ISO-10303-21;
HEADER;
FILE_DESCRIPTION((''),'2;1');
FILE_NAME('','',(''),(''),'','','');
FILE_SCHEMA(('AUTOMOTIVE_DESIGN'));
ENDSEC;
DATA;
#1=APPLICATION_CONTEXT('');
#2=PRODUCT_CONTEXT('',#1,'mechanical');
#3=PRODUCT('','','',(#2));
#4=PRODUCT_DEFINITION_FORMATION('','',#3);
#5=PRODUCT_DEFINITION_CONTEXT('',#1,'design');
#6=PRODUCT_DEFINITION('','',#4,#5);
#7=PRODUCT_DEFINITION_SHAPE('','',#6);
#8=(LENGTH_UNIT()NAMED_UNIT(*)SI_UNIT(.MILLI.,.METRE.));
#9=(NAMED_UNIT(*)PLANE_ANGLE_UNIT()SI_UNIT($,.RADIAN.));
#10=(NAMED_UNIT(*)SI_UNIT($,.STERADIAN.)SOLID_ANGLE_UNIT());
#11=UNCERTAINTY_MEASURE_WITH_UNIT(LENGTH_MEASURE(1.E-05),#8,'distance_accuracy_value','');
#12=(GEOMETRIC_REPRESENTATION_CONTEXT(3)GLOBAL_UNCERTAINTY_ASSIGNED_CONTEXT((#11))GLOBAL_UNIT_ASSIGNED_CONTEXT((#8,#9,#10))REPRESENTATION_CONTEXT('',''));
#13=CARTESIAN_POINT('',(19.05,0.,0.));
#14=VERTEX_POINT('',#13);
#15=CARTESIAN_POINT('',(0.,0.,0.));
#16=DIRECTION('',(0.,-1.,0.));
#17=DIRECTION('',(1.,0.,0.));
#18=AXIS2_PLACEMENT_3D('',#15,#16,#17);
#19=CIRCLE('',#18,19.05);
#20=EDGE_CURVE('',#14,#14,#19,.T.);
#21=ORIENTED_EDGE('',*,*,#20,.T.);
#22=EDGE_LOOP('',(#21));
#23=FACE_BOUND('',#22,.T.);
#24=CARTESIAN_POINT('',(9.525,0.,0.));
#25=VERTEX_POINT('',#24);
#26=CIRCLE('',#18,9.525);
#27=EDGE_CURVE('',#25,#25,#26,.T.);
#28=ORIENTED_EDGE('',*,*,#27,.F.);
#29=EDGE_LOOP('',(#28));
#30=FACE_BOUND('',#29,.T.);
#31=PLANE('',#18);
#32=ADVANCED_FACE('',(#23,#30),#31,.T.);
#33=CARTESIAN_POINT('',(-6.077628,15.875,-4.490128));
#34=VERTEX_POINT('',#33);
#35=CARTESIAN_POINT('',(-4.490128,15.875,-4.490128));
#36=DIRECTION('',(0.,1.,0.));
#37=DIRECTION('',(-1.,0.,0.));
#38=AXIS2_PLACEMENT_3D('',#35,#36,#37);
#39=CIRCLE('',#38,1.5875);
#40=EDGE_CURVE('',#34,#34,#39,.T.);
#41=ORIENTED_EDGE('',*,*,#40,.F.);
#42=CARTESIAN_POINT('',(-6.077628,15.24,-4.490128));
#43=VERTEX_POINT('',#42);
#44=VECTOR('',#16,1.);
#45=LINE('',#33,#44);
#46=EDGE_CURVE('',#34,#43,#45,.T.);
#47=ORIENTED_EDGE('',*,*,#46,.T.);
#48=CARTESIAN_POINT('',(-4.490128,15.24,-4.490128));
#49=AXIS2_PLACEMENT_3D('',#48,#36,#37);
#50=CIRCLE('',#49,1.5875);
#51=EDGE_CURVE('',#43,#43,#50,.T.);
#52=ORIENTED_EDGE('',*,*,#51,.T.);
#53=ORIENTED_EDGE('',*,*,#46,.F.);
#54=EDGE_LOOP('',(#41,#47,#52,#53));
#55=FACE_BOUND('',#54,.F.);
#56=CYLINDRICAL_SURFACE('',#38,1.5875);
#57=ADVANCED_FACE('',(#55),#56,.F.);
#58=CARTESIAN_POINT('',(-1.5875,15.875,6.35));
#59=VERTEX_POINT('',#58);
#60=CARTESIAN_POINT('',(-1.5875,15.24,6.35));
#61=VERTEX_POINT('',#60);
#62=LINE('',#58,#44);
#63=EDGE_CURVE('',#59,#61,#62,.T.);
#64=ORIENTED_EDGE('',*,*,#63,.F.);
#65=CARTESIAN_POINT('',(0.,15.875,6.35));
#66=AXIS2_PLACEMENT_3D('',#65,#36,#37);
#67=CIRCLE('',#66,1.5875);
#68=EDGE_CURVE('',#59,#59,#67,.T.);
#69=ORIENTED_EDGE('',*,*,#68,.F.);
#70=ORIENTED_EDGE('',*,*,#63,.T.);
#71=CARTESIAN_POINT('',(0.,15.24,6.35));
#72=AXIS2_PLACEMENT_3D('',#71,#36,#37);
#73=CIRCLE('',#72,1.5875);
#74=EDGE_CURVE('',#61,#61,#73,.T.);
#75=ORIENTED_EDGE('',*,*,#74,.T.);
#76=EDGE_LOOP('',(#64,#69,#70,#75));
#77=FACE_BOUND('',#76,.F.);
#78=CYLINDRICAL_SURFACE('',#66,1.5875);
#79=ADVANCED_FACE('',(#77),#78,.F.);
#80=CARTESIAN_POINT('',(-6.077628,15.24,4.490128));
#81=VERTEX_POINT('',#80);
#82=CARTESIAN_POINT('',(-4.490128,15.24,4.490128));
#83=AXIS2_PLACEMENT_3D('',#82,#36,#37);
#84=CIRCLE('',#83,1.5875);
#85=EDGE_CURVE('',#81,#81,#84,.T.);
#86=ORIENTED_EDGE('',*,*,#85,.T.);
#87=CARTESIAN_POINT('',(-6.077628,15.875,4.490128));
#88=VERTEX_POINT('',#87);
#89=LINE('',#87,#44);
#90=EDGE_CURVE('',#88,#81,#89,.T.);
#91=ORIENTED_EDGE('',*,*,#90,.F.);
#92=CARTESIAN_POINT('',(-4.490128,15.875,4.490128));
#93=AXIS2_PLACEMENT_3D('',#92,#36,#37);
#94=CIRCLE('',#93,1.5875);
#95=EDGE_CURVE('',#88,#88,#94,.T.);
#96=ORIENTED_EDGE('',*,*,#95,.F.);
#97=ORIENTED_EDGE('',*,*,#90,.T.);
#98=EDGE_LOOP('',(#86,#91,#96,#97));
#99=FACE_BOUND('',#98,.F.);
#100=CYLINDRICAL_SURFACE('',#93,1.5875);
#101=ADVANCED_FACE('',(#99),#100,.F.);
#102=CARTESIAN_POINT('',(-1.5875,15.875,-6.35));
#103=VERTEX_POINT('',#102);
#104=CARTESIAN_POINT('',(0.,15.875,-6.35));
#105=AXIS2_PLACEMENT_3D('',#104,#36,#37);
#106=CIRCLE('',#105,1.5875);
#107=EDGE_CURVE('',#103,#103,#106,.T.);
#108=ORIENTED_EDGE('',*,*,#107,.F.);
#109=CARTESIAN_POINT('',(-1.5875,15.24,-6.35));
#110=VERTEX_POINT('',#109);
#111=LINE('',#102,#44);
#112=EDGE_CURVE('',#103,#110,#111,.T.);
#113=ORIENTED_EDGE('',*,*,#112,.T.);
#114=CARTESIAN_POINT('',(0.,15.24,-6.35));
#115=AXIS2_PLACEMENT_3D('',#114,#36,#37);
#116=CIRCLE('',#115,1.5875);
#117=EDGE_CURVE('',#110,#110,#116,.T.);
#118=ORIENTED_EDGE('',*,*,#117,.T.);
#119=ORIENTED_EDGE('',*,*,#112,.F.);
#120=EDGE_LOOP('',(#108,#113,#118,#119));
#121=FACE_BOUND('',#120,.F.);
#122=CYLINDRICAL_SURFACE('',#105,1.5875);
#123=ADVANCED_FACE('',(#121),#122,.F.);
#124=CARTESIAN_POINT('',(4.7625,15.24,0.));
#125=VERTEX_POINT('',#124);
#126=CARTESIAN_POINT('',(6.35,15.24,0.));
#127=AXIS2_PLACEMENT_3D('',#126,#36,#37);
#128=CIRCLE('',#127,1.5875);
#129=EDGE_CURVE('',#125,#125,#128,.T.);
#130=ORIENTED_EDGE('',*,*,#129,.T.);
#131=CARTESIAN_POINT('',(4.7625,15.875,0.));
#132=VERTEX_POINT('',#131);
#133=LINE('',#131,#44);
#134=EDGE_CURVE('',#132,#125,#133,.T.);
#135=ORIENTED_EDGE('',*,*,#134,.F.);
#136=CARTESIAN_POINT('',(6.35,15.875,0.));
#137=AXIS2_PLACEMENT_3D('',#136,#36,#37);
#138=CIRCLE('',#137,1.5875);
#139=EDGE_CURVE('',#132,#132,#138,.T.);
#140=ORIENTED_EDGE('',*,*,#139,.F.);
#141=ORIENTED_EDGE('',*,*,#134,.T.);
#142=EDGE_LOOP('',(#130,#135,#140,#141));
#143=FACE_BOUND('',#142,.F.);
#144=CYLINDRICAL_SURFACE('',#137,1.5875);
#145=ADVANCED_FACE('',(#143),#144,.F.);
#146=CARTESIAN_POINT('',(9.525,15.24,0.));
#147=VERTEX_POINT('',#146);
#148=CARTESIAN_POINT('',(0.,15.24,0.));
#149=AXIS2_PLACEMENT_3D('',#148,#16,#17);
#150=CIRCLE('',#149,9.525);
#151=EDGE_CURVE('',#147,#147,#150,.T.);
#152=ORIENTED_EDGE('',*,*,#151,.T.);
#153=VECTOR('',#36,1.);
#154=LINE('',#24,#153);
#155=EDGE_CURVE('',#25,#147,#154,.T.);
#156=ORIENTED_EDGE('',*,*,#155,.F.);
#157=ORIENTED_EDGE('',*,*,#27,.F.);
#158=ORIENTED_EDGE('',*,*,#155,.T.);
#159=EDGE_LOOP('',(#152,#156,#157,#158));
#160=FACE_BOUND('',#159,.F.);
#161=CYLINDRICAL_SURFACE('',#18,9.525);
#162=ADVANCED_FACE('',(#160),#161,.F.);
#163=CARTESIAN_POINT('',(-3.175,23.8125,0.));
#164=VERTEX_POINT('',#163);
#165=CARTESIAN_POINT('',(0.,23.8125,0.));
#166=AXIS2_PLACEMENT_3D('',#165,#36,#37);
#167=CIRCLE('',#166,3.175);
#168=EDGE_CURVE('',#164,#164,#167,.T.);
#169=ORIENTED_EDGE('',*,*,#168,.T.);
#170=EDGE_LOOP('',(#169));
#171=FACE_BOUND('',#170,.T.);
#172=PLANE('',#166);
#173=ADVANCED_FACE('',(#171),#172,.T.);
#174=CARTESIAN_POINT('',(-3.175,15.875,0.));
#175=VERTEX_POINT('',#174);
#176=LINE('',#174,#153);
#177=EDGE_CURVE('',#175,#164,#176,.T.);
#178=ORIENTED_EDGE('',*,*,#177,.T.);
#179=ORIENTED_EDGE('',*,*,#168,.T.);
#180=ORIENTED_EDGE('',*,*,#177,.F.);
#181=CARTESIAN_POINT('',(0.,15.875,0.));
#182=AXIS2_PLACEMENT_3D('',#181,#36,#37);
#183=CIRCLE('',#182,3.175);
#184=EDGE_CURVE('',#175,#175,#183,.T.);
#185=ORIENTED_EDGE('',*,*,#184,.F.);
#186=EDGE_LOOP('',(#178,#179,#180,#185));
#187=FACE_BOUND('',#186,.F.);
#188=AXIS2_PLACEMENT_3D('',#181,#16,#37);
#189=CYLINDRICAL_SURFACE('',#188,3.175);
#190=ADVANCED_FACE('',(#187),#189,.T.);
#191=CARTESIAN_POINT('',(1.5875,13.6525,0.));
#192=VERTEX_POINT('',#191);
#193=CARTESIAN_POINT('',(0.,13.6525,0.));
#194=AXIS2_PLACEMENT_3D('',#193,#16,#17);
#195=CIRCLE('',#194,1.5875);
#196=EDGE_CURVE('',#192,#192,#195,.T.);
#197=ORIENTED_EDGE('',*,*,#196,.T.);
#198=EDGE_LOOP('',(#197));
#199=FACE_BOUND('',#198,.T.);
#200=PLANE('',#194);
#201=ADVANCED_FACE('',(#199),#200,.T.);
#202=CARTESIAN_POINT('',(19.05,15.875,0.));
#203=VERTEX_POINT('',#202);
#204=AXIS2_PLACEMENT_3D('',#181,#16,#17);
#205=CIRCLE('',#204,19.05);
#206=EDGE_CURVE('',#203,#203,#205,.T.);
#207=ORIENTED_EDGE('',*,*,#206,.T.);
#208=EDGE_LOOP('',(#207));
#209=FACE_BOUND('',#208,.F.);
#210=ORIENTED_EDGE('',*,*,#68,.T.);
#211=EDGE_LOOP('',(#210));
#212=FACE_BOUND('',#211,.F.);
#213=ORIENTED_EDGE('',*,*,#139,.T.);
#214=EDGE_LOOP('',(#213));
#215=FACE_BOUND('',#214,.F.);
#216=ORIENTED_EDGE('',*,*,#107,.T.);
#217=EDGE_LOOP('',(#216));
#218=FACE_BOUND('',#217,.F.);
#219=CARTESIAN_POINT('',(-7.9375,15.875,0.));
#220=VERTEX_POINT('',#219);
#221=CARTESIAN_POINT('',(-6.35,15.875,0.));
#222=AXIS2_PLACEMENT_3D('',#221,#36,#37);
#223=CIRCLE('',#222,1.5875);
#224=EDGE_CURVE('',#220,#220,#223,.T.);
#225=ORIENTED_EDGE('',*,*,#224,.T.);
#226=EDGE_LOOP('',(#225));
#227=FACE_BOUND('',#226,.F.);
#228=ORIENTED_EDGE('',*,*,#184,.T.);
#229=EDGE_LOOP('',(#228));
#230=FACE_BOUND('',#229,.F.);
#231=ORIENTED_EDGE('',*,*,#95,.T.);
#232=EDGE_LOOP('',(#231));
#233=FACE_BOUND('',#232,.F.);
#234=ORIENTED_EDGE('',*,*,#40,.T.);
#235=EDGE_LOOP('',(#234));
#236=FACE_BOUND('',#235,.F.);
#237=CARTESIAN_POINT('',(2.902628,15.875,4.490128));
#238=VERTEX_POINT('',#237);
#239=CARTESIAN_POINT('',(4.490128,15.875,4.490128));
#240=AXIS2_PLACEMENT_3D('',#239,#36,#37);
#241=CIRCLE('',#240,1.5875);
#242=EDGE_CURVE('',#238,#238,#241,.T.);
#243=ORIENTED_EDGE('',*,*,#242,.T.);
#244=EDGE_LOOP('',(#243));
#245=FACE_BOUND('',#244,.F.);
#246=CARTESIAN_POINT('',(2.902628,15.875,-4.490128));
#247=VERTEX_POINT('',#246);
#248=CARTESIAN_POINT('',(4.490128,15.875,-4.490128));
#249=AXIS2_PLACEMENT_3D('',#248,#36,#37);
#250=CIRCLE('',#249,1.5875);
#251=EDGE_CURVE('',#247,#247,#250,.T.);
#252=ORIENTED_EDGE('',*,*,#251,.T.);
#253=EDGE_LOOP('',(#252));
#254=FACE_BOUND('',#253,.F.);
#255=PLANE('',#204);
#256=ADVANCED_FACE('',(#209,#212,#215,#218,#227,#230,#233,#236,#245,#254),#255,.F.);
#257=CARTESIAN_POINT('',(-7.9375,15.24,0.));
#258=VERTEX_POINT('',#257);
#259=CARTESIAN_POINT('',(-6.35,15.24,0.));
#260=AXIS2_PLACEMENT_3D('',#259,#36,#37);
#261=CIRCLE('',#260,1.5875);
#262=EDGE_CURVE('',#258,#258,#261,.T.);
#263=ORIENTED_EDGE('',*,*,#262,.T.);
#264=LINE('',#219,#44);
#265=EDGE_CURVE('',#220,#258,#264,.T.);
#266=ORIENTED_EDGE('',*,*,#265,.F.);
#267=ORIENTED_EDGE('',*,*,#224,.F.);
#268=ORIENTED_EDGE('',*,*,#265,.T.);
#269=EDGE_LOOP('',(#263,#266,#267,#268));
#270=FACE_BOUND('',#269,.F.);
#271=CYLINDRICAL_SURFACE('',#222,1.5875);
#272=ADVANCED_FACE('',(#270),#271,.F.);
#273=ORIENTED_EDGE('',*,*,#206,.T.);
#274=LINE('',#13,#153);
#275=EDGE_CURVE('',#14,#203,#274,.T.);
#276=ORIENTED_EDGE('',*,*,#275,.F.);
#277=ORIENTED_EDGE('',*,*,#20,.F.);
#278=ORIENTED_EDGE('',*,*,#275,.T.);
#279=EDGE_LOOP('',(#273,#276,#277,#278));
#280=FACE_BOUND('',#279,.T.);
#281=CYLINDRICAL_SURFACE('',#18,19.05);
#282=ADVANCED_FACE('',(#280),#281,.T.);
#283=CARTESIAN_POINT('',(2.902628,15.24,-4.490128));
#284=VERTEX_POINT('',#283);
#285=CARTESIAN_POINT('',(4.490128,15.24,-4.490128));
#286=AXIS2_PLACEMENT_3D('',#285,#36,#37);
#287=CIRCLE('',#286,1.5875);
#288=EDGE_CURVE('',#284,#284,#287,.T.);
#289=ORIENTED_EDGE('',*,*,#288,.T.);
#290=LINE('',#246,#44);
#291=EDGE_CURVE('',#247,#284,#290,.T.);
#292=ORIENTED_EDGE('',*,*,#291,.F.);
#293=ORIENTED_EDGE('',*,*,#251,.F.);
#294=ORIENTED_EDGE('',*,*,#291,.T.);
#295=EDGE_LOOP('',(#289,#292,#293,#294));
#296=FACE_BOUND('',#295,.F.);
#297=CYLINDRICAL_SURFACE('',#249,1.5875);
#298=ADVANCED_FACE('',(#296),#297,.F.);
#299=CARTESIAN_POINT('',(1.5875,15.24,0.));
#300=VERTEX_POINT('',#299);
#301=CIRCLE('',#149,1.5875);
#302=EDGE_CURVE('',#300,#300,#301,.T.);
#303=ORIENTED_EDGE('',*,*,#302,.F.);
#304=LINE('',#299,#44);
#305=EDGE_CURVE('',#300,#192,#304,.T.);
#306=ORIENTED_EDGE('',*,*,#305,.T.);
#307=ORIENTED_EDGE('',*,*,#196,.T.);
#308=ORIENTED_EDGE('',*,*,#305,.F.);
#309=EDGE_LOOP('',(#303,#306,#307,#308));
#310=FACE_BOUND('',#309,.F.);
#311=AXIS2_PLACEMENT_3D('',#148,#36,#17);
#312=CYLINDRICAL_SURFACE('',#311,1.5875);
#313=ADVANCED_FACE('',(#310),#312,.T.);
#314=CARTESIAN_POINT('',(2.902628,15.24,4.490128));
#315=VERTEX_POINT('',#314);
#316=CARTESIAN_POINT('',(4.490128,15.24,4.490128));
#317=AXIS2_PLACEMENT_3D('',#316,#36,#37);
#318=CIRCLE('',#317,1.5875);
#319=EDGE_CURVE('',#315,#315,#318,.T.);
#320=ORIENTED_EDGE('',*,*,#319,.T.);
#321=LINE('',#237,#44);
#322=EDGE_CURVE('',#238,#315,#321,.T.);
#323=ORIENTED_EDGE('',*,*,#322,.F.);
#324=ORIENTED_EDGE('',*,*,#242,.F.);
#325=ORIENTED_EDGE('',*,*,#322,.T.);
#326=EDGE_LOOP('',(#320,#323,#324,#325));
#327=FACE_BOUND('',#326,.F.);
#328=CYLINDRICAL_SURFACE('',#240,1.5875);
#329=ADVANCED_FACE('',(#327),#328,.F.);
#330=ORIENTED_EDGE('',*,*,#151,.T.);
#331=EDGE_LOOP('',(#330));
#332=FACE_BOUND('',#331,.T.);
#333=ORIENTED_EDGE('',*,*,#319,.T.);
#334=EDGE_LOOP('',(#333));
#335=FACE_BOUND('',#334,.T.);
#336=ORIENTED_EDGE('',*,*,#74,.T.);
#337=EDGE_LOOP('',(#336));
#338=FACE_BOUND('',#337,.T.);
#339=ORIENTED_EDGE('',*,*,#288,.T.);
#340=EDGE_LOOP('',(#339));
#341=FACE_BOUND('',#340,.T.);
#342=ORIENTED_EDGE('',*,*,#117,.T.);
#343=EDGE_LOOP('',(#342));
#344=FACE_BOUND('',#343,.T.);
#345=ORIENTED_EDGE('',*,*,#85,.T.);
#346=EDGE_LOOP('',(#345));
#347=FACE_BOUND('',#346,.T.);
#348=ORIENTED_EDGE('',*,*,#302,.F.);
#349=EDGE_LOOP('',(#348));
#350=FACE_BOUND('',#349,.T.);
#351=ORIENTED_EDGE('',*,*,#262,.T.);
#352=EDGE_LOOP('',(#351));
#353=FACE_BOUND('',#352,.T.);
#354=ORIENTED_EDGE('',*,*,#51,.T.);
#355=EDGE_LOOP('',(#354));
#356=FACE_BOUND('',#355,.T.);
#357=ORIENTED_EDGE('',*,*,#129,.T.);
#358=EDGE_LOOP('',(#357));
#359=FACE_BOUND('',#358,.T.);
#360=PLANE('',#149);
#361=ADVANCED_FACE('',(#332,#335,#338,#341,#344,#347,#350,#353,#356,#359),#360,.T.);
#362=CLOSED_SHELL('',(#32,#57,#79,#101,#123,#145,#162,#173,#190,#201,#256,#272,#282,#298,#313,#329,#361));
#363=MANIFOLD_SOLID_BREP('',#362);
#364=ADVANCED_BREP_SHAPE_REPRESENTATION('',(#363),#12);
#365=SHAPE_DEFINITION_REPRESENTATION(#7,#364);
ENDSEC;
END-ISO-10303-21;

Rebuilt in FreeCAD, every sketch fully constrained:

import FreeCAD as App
import Part
import Sketcher
from FreeCAD import Vector
Q = App.Units.Quantity

doc = App.newDocument("Part")
params = doc.addObject("Spreadsheet::Sheet", "Params")
for row, (alias, value) in enumerate([
    ("sketch1_diameter", "1.5 in"),
    ("pad1_length", "0.625 in"),
    ("sketch2_diameter", "0.75 in"),
    ("pocket1_length", "0.6 in"),
    ("sketch3_diameter", "0.125 in"),
    ("pad2_length", "0.0625 in"),
    ("sketch4_diameter", "0.25 in"),
    ("pad3_length", "0.3125 in"),
    ("sketch5_diameter", "0.125 in"),
    ("pocket2_length", "1 in"),
], start=1):
    params.set(f"A{row}", alias)
    params.set(f"B{row}", "=" + value)
    params.setAlias(f"B{row}", alias)

body = doc.addObject("PartDesign::Body", "Body")

# Sketch on XZ plane
sketch1 = body.newObject("Sketcher::SketchObject", "Sketch")
sketch1.AttachmentSupport = (doc.getObject("XZ_Plane"), [""])
sketch1.MapMode = "FlatFace"
sketch1.addGeometry(Part.Circle(Vector(0, 0, 0), Vector(0, 0, 1), 19.05), False)
sketch1.addConstraint(Sketcher.Constraint("Coincident", 0, 3, -1, 1))
sketch1.addConstraint(Sketcher.Constraint("Diameter", 0, Q("1.5 in")))
sketch1.setExpression("Constraints[1]", "Params.sketch1_diameter")
pad1 = body.newObject("PartDesign::Pad", "Pad")
pad1.Profile = sketch1
pad1.setExpression("Length", "Params.pad1_length")
pad1.Reversed = True

# Sketch on XZ plane
sketch2 = body.newObject("Sketcher::SketchObject", "Sketch001")
sketch2.AttachmentSupport = (doc.getObject("XZ_Plane"), [""])
sketch2.MapMode = "FlatFace"
sketch2.addGeometry(Part.Circle(Vector(0, 0, 0), Vector(0, 0, 1), 9.525), False)
sketch2.addConstraint(Sketcher.Constraint("Coincident", 0, 3, -1, 1))
sketch2.addConstraint(Sketcher.Constraint("Diameter", 0, Q("0.75 in")))
sketch2.setExpression("Constraints[1]", "Params.sketch2_diameter")
pocket1 = body.newObject("PartDesign::Pocket", "Pocket")
pocket1.Profile = sketch2
pocket1.setExpression("Length", "Params.pocket1_length")

# Sketch on XZ plane
sketch3 = body.newObject("Sketcher::SketchObject", "Sketch002")
sketch3.AttachmentSupport = (doc.getObject("XZ_Plane"), [""])
sketch3.MapMode = "FlatFace"
sketch3.AttachmentOffset = App.Placement(Vector(0, 0, -0.6 * 25.4), App.Rotation())
sketch3.addGeometry(Part.Circle(Vector(0, 0, 0), Vector(0, 0, 1), 1.5875), False)
sketch3.addConstraint(Sketcher.Constraint("Coincident", 0, 3, -1, 1))
sketch3.addConstraint(Sketcher.Constraint("Diameter", 0, Q("0.125 in")))
sketch3.setExpression("Constraints[1]", "Params.sketch3_diameter")
pad2 = body.newObject("PartDesign::Pad", "Pad001")
pad2.Profile = sketch3
pad2.setExpression("Length", "Params.pad2_length")

# Sketch on XZ plane
sketch4 = body.newObject("Sketcher::SketchObject", "Sketch003")
sketch4.AttachmentSupport = (doc.getObject("XZ_Plane"), [""])
sketch4.MapMode = "FlatFace"
sketch4.AttachmentOffset = App.Placement(Vector(0, 0, -0.625 * 25.4), App.Rotation())
sketch4.addGeometry(Part.Circle(Vector(0, 0, 0), Vector(0, 0, 1), 3.175), False)
sketch4.addConstraint(Sketcher.Constraint("Coincident", 0, 3, -1, 1))
sketch4.addConstraint(Sketcher.Constraint("Diameter", 0, Q("0.25 in")))
sketch4.setExpression("Constraints[1]", "Params.sketch4_diameter")
pad3 = body.newObject("PartDesign::Pad", "Pad002")
pad3.Profile = sketch4
pad3.setExpression("Length", "Params.pad3_length")
pad3.Reversed = True

# Sketch on XZ plane
sketch5 = body.newObject("Sketcher::SketchObject", "Sketch004")
sketch5.AttachmentSupport = (doc.getObject("XZ_Plane"), [""])
sketch5.MapMode = "FlatFace"
sketch5.AttachmentOffset = App.Placement(Vector(0, 0, -0.625 * 25.4), App.Rotation())
sketch5.addGeometry(Part.Circle(Vector(-6.35, 0, 0), Vector(0, 0, 1), 1.5875), False)
sketch5.addGeometry(Part.Circle(Vector(-4.490128, 4.490128, 0), Vector(0, 0, 1), 1.5875), False)
sketch5.addGeometry(Part.Circle(Vector(0, 6.35, 0), Vector(0, 0, 1), 1.5875), False)
sketch5.addGeometry(Part.Circle(Vector(4.490128, 4.490128, 0), Vector(0, 0, 1), 1.5875), False)
sketch5.addGeometry(Part.Circle(Vector(6.35, 0, 0), Vector(0, 0, 1), 1.5875), False)
sketch5.addGeometry(Part.Circle(Vector(4.490128, -4.490128, 0), Vector(0, 0, 1), 1.5875), False)
sketch5.addGeometry(Part.Circle(Vector(0, -6.35, 0), Vector(0, 0, 1), 1.5875), False)
sketch5.addGeometry(Part.Circle(Vector(-4.490128, -4.490128, 0), Vector(0, 0, 1), 1.5875), False)
sketch5.addConstraint(Sketcher.Constraint("Equal", 0, 1))
sketch5.addConstraint(Sketcher.Constraint("Equal", 1, 2))
sketch5.addConstraint(Sketcher.Constraint("Equal", 2, 3))
sketch5.addConstraint(Sketcher.Constraint("Equal", 3, 4))
sketch5.addConstraint(Sketcher.Constraint("Equal", 4, 5))
sketch5.addConstraint(Sketcher.Constraint("Equal", 5, 6))
sketch5.addConstraint(Sketcher.Constraint("Equal", 6, 7))
sketch5.addConstraint(Sketcher.Constraint("Symmetric", 0, 3, 4, 3, -1, 1))
sketch5.addConstraint(Sketcher.Constraint("Symmetric", 1, 3, 5, 3, -1, 1))
sketch5.addConstraint(Sketcher.Constraint("Symmetric", 2, 3, 6, 3, -1, 1))
sketch5.addConstraint(Sketcher.Constraint("Symmetric", 3, 3, 7, 3, -1, 1))
sketch5.addConstraint(Sketcher.Constraint("Symmetric", 1, 3, 3, 3, -2))
sketch5.addConstraint(Sketcher.Constraint("PointOnObject", 0, 3, -1))
sketch5.addConstraint(Sketcher.Constraint("PointOnObject", 2, 3, -2))
sketch5.addConstraint(Sketcher.Constraint("Diameter", 0, Q("0.125 in")))
sketch5.addConstraint(Sketcher.Constraint("DistanceX", 0, 3, 4, 3, Q("0.5 in")))
sketch5.addConstraint(Sketcher.Constraint("DistanceY", -1, 1, 2, 3, Q("0.25 in")))
sketch5.addConstraint(Sketcher.Constraint("DistanceX", 1, 3, -1, 1, Q("4.490128 mm")))
sketch5.addConstraint(Sketcher.Constraint("DistanceY", -1, 1, 1, 3, Q("4.490128 mm")))
sketch5.setExpression("Constraints[14]", "Params.sketch5_diameter")
pocket2 = body.newObject("PartDesign::Pocket", "Pocket001")
pocket2.Profile = sketch5
pocket2.setExpression("Length", "Params.pocket2_length")
pocket2.Reversed = True

doc.recompute()
